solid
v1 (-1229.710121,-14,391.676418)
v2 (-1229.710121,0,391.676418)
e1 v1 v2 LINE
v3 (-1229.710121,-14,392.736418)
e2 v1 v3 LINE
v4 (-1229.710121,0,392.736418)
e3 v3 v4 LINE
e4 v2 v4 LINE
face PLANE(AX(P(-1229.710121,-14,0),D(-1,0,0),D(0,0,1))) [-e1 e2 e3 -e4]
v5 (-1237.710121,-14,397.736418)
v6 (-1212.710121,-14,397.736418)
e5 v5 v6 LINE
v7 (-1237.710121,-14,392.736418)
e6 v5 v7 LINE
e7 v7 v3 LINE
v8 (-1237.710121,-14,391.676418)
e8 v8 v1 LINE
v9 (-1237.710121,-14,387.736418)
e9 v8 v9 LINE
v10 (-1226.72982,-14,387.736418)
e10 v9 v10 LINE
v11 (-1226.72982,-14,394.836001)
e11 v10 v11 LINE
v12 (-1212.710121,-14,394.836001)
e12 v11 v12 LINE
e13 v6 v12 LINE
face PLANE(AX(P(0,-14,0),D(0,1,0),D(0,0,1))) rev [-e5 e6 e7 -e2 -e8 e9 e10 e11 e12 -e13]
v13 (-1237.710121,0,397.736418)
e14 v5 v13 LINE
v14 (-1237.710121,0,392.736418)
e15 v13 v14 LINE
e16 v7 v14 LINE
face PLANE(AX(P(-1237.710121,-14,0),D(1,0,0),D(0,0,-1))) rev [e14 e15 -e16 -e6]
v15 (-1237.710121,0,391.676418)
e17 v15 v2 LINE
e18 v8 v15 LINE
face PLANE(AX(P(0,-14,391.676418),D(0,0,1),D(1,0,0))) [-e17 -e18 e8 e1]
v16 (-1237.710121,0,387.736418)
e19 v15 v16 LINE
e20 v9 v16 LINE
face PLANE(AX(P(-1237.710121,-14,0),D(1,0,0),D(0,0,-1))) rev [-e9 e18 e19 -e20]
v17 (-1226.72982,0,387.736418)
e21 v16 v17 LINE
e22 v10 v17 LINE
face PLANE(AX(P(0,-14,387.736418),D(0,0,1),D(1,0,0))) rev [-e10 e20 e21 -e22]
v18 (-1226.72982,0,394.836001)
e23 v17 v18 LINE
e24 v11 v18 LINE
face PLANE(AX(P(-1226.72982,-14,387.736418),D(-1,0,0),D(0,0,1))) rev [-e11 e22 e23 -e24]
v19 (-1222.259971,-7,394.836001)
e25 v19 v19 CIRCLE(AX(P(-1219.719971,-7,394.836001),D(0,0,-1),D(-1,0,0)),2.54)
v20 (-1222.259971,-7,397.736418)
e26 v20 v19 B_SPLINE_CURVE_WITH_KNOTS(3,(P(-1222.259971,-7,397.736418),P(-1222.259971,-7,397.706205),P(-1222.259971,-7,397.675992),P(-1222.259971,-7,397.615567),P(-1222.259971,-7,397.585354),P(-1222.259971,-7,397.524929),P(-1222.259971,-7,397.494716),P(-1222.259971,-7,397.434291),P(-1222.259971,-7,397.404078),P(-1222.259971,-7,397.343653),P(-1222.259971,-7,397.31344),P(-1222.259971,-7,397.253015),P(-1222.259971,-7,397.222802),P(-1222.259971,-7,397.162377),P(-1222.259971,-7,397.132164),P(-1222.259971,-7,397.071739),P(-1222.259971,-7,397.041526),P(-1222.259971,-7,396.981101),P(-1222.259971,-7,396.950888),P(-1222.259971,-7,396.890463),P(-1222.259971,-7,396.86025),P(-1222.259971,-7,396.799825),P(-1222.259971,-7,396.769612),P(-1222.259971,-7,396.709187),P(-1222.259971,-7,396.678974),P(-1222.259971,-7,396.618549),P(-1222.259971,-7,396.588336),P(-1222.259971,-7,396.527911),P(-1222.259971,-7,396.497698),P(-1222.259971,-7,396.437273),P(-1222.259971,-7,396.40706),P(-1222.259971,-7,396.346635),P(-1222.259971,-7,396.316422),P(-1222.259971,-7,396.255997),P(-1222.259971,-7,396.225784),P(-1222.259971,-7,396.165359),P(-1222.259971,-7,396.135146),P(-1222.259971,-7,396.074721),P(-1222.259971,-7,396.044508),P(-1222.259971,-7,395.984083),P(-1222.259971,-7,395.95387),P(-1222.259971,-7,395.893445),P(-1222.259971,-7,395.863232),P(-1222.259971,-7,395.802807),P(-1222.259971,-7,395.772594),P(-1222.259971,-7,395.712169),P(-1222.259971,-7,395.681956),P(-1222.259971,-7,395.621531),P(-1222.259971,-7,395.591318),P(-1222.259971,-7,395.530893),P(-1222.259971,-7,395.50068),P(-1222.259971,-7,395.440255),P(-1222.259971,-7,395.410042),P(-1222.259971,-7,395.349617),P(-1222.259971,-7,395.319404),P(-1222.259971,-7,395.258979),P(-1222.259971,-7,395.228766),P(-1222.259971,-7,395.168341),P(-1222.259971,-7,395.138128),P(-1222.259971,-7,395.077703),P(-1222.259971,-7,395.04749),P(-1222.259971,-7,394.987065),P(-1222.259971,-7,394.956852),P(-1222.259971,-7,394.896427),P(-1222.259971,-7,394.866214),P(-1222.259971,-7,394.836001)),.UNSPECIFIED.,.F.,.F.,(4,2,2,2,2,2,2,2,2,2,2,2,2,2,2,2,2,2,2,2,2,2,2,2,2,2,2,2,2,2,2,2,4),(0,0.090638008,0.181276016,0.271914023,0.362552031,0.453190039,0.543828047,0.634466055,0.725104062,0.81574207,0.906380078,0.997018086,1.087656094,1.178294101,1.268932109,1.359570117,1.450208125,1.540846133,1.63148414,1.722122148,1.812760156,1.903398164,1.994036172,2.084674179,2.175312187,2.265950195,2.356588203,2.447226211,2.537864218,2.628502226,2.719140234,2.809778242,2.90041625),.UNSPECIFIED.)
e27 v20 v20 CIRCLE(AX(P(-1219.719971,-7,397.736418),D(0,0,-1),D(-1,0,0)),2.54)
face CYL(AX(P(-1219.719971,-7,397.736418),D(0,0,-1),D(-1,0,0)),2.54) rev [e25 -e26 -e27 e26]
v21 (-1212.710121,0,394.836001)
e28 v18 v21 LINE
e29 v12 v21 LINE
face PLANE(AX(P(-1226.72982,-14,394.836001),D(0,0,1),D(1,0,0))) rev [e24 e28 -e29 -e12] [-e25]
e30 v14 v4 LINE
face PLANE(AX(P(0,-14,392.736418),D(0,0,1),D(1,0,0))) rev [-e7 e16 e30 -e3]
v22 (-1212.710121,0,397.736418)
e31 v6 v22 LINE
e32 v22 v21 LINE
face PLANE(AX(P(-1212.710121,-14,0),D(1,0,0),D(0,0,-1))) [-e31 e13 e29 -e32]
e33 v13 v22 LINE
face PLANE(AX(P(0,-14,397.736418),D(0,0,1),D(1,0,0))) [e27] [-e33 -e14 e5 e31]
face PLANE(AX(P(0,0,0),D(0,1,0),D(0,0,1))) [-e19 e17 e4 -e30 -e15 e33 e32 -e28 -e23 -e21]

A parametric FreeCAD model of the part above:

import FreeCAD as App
import Part
import Sketcher

doc = App.newDocument("Part")
body = doc.addObject("PartDesign::Body", "Body")

# Sketch on XZ plane
sketch1 = body.newObject("Sketcher::SketchObject", "Sketch")
sketch1.AttachmentSupport = (doc.getObject("XZ_Plane"), [""])
sketch1.MapMode = "FlatFace"
sketch1.addGeometry([
    Part.LineSegment(App.Vector(-1237.7, 392.7, 0), App.Vector(-1237.7, 397.7, 0)),  # 0
    Part.LineSegment(App.Vector(-1237.7, 397.7, 0), App.Vector(-1212.7, 397.7, 0)),  # 1
    Part.LineSegment(App.Vector(-1212.7, 397.7, 0), App.Vector(-1212.7, 387.7, 0)),  # 2
    Part.LineSegment(App.Vector(-1212.7, 387.7, 0), App.Vector(-1237.7, 387.7, 0)),  # 3
    Part.LineSegment(App.Vector(-1237.7, 387.7, 0), App.Vector(-1237.7, 391.7, 0)),  # 4
    Part.LineSegment(App.Vector(-1237.7, 391.7, 0), App.Vector(-1229.7, 391.7, 0)),  # 5
    Part.LineSegment(App.Vector(-1229.7, 391.7, 0), App.Vector(-1229.7, 392.7, 0)),  # 6
    Part.LineSegment(App.Vector(-1229.7, 392.7, 0), App.Vector(-1237.7, 392.7, 0)),  # 7
], False)
sketch1.addConstraint([
    Sketcher.Constraint("Coincident", 0, 2, 1, 1),
    Sketcher.Constraint("Coincident", 1, 2, 2, 1),
    Sketcher.Constraint("Coincident", 2, 2, 3, 1),
    Sketcher.Constraint("Coincident", 3, 2, 4, 1),
    Sketcher.Constraint("Coincident", 4, 2, 5, 1),
    Sketcher.Constraint("Coincident", 5, 2, 6, 1),
    Sketcher.Constraint("Coincident", 6, 2, 7, 1),
    Sketcher.Constraint("Coincident", 7, 2, 0, 1),
    Sketcher.Constraint("Vertical", 0),
    Sketcher.Constraint("Horizontal", 1),
    Sketcher.Constraint("Vertical", 2),
    Sketcher.Constraint("Horizontal", 3),
    Sketcher.Constraint("Vertical", 4),
    Sketcher.Constraint("Horizontal", 5),
    Sketcher.Constraint("Vertical", 6),
    Sketcher.Constraint("Horizontal", 7),
    Sketcher.Constraint("Vertical", 0, 2, 3, 2),
    Sketcher.Constraint("DistanceX", 1, 1, 1, 2, 25.0),
    Sketcher.Constraint("DistanceX", 5, 1, 5, 2, 8.0),
    Sketcher.Constraint("DistanceY", 0, 1, 0, 2, 5.0),
    Sketcher.Constraint("DistanceY", 2, 2, 2, 1, 10.0),
    Sketcher.Constraint("DistanceY", 4, 1, 4, 2, 3.94),
    Sketcher.Constraint("DistanceX", 0, 2, -1, 1, 1237.710121),
    Sketcher.Constraint("DistanceY", -1, 1, 0, 2, 397.736418),
])
pad1 = body.newObject("PartDesign::Pad", "Pad")
pad1.Profile = sketch1
pad1.Length = 14

# Sketch on XZ plane
sketch2 = body.newObject("Sketcher::SketchObject", "Sketch001")
sketch2.AttachmentSupport = (doc.getObject("XZ_Plane"), [""])
sketch2.MapMode = "FlatFace"
sketch2.addGeometry([
    Part.LineSegment(App.Vector(-1227, 388, 0), App.Vector(-1227, 395, 0)),
    Part.LineSegment(App.Vector(-1227, 395, 0), App.Vector(-1213, 395, 0)),
    Part.LineSegment(App.Vector(-1213, 395, 0), App.Vector(-1213, 388, 0)),
    Part.LineSegment(App.Vector(-1213, 388, 0), App.Vector(-1227, 388, 0)),
], False)
sketch2.addConstraint([
    Sketcher.Constraint("Coincident", 0, 2, 1, 1),
    Sketcher.Constraint("Coincident", 1, 2, 2, 1),
    Sketcher.Constraint("Coincident", 2, 2, 3, 1),
    Sketcher.Constraint("Coincident", 3, 2, 0, 1),
    Sketcher.Constraint("Vertical", 0),
    Sketcher.Constraint("Horizontal", 1),
    Sketcher.Constraint("Vertical", 2),
    Sketcher.Constraint("Horizontal", 3),
    Sketcher.Constraint("DistanceX", 1, 1, 1, 2, 14.019699),
    Sketcher.Constraint("DistanceY", -1, 1, 0, 2, 394.836001),
    Sketcher.Constraint("DistanceY", 0, 1, 0, 2, 7.099584),
    Sketcher.Constraint("DistanceX", 0, 2, -1, 1, 1226.72982),
])
pocket1 = body.newObject("PartDesign::Pocket", "Pocket")
pocket1.Profile = sketch2
pocket1.Type = "ThroughAll"
pocket1.Reversed = True

# Sketch on XY plane
sketch3 = body.newObject("Sketcher::SketchObject", "Sketch002")
sketch3.AttachmentSupport = (doc.getObject("XY_Plane"), [""])
sketch3.MapMode = "FlatFace"
sketch3.AttachmentOffset = App.Placement(App.Vector(0, 0, 394.836001), App.Rotation())
sketch3.addGeometry(Part.Circle(App.Vector(-1219.7, -7, 0), App.Vector(0, 0, 1), 2.5), False)
sketch3.addConstraint([
    Sketcher.Constraint("Diameter", 0, 5.08),
    Sketcher.Constraint("DistanceY", 0, 3, -1, 1, 7.0),
    Sketcher.Constraint("DistanceX", 0, 3, -1, 1, 1219.719971),
])
pocket2 = body.newObject("PartDesign::Pocket", "Pocket001")
pocket2.Profile = sketch3
pocket2.Type = "ThroughAll"
pocket2.Reversed = True

doc.recompute()
